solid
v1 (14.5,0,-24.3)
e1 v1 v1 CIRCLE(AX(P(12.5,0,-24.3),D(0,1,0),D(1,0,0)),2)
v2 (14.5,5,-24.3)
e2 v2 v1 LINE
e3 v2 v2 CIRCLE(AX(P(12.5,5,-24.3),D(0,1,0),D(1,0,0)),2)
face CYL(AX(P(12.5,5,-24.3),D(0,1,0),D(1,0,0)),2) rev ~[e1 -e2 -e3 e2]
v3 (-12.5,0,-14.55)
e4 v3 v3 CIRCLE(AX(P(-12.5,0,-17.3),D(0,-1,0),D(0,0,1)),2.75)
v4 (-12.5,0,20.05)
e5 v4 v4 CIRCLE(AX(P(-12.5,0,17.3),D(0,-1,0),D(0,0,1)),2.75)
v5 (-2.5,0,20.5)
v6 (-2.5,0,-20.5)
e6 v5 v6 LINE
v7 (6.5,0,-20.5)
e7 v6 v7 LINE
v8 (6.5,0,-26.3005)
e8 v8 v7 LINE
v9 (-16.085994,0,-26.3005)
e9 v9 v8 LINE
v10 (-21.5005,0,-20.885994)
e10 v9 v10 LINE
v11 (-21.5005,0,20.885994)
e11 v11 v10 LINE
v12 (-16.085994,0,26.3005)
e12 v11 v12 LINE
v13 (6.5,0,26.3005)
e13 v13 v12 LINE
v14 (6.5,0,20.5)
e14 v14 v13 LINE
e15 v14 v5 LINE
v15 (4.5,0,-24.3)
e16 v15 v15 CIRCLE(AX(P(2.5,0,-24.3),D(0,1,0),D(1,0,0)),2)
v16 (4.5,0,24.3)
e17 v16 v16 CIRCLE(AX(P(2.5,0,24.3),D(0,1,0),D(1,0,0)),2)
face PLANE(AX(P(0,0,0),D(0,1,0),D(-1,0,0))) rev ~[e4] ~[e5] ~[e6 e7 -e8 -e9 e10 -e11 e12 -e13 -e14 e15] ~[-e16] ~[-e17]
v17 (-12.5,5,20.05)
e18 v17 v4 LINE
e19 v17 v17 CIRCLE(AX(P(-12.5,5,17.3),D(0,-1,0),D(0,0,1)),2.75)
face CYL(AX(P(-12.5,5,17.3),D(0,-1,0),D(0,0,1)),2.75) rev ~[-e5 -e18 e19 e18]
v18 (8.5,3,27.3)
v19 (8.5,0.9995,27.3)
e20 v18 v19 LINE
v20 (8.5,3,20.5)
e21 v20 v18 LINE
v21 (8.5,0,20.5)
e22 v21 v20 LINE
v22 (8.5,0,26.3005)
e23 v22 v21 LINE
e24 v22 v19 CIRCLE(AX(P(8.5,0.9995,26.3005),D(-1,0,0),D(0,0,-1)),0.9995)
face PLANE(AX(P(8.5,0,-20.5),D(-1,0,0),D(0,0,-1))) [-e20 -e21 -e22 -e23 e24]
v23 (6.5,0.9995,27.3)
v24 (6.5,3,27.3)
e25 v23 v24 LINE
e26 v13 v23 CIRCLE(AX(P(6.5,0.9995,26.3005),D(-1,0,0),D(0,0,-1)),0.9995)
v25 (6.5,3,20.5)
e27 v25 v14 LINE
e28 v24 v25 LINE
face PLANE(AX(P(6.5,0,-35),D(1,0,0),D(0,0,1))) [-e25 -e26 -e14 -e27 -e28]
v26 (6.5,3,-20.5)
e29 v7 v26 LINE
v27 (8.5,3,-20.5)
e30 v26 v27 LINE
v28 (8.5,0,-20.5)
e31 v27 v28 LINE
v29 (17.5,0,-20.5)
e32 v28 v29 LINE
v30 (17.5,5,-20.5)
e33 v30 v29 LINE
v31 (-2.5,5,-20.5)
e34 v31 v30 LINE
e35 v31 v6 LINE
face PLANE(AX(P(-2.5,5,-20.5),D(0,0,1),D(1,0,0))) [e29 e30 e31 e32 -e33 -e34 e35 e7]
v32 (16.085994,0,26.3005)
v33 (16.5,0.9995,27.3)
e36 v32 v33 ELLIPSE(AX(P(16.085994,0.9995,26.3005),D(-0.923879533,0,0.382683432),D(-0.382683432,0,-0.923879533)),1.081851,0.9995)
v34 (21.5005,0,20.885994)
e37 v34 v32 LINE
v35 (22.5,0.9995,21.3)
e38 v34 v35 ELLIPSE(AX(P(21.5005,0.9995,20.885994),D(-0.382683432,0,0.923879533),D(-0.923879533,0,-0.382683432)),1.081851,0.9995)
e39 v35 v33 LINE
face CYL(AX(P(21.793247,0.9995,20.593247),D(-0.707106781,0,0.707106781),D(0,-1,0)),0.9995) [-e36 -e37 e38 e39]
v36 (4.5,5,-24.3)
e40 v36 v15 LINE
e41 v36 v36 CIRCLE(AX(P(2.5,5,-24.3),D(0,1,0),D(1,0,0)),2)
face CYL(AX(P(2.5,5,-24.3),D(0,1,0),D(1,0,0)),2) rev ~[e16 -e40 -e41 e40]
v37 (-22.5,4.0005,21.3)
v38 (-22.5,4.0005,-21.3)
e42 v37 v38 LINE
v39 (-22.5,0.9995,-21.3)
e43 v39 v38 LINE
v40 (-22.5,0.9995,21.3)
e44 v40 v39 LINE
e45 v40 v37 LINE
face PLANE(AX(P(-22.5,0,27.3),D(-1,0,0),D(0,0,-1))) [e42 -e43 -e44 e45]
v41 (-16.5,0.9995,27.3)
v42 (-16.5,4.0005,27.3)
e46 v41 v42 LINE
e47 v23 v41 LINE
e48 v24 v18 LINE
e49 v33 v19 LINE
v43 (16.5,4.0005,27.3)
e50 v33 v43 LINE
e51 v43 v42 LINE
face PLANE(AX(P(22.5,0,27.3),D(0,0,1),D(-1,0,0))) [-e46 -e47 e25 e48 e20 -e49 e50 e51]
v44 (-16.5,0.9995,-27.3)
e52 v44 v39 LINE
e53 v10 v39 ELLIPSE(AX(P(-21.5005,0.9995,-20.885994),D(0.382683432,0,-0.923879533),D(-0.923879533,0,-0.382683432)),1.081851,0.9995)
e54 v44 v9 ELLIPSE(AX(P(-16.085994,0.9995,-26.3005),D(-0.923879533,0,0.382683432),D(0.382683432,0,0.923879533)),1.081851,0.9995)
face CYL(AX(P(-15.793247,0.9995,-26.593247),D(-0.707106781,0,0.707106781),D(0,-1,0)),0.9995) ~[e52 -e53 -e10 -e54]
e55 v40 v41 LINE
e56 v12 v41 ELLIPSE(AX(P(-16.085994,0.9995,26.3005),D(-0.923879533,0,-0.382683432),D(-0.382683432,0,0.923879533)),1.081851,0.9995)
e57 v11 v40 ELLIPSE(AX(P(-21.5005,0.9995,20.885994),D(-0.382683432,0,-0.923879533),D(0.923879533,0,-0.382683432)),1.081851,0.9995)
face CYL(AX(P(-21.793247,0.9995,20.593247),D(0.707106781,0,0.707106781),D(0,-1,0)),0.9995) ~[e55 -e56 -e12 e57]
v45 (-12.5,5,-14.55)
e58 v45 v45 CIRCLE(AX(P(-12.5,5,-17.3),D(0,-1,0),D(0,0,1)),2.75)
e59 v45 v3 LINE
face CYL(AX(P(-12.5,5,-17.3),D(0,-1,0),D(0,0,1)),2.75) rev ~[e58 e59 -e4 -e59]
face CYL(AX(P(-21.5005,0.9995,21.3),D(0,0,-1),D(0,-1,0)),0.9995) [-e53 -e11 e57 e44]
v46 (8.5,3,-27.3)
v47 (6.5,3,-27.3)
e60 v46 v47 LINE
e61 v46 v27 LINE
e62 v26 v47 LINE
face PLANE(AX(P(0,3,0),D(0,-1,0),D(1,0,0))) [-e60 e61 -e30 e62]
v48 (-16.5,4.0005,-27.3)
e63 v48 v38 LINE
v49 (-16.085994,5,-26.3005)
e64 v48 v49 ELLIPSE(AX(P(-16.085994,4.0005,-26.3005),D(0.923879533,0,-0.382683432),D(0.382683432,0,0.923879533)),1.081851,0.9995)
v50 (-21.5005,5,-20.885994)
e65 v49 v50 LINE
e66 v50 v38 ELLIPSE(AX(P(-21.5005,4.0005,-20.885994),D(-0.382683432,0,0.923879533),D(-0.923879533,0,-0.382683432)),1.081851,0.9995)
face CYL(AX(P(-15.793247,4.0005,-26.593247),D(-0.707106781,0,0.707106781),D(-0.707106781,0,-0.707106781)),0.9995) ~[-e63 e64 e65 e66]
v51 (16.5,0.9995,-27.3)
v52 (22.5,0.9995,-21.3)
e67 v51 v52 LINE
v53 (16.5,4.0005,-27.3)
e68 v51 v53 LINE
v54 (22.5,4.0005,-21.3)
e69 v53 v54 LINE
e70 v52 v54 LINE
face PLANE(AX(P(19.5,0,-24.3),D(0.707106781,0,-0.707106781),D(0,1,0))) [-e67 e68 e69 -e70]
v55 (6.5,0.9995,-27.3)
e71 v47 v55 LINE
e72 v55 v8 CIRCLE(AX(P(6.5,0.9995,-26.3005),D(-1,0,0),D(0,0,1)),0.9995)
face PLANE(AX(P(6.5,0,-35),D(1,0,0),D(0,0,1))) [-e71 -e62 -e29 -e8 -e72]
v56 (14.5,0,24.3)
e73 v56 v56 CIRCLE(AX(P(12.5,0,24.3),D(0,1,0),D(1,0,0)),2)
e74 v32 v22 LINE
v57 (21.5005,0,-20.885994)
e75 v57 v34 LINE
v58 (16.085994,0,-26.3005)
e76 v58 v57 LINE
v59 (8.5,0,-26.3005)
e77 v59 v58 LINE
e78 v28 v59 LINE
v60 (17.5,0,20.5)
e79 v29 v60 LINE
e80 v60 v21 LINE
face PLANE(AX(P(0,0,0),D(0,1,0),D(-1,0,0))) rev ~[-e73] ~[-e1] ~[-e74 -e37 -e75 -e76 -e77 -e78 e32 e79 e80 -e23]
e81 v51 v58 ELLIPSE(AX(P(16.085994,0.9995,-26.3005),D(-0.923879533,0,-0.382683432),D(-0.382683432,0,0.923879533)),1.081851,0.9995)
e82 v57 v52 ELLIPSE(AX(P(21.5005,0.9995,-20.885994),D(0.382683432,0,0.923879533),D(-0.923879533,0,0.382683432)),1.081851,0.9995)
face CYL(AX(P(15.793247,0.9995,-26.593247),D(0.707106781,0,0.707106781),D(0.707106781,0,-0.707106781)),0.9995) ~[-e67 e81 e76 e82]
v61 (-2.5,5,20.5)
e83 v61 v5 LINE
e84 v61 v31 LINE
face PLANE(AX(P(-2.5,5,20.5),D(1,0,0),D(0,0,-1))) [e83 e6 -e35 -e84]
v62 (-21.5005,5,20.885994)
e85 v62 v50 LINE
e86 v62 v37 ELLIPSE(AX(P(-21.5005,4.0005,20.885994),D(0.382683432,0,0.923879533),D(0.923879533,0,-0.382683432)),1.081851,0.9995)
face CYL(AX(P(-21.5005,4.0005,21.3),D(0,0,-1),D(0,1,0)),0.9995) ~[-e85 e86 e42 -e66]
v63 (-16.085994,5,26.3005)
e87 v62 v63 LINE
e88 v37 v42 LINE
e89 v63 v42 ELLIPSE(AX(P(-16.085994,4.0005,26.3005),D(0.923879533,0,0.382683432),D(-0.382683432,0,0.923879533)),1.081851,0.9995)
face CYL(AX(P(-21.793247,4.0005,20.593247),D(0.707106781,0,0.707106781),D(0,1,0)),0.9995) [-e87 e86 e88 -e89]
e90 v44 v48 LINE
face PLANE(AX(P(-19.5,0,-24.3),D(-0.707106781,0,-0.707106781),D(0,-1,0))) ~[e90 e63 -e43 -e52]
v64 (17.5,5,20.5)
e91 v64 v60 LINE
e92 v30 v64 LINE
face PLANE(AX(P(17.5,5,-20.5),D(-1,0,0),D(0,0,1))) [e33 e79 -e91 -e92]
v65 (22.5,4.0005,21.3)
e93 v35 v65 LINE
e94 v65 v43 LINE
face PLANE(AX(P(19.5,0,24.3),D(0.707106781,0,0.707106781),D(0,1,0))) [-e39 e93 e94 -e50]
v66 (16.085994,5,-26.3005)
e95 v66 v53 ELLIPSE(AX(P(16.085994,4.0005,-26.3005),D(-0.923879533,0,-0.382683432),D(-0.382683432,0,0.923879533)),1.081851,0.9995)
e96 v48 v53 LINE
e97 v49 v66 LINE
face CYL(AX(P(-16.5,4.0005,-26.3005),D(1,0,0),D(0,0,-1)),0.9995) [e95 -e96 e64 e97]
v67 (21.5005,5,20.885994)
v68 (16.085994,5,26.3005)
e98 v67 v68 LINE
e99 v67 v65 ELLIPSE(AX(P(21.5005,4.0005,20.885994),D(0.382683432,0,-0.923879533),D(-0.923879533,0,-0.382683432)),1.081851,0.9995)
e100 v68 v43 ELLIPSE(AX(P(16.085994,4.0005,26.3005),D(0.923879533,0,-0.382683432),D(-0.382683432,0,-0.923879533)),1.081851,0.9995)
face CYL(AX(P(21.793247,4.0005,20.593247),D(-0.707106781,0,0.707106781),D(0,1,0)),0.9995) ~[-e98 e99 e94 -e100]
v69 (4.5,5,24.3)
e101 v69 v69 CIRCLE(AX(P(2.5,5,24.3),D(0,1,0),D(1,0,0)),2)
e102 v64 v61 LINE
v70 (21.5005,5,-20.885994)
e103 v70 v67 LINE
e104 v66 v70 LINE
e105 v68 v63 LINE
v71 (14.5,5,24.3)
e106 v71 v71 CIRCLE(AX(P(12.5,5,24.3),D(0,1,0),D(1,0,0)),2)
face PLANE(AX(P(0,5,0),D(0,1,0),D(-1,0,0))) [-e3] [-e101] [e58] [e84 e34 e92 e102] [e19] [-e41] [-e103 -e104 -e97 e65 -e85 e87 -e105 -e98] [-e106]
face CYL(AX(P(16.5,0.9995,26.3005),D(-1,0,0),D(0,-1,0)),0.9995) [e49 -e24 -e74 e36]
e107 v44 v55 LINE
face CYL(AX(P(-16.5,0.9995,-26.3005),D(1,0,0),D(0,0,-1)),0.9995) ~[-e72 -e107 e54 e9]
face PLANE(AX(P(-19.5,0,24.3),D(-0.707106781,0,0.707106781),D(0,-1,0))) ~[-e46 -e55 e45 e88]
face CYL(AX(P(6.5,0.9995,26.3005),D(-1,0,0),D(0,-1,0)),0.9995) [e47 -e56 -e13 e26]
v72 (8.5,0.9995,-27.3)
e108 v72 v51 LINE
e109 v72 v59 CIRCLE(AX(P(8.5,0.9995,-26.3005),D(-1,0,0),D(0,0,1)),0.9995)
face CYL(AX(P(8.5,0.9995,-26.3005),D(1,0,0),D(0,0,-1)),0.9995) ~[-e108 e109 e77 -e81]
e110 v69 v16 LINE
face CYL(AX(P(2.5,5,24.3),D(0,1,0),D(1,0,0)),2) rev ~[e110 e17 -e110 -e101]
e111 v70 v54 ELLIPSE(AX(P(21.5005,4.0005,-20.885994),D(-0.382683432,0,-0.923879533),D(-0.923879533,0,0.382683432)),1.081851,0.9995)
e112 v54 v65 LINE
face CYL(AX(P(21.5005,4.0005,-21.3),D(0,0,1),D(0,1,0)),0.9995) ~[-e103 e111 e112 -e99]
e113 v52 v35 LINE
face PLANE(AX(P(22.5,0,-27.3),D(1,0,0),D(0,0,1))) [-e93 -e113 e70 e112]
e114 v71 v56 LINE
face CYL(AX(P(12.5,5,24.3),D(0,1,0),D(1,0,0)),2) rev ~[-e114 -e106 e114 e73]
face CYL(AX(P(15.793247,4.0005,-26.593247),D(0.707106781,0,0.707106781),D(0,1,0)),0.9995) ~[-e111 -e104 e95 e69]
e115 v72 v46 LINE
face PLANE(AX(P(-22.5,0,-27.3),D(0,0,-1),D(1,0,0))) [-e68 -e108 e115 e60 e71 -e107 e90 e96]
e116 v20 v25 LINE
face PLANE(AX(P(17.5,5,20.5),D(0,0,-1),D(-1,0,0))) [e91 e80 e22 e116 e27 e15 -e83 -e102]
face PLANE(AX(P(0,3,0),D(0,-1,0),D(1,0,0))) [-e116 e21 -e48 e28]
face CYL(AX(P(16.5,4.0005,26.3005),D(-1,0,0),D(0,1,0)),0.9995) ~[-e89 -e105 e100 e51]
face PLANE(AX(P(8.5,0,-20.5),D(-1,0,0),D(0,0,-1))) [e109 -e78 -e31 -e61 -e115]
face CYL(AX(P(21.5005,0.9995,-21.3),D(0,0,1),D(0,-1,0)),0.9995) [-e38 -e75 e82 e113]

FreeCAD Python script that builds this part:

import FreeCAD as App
import Part
import Sketcher
from FreeCAD import Vector
Q = App.Units.Quantity


def edges_at(feature, points):
    """Names of the edges that pass closest to the given points."""
    edges = feature.Shape.Edges
    near = lambda p: min(range(len(edges)), key=lambda i: edges[i].distToShape(Part.Vertex(*p))[0])
    return sorted({f"Edge{near(p) + 1}" for p in points})


def add_polygon(sketch, points):
    """Adds a closed chain of lines whose ends are joined by coincident constraints."""
    first, n = sketch.GeometryCount, len(points)
    for a, b in zip(points, points[1:] + points[:1]):
        sketch.addGeometry(Part.LineSegment(App.Vector(*a, 0), App.Vector(*b, 0)), False)
    for i in range(n):
        sketch.addConstraint(Sketcher.Constraint("Coincident", first + i, 2, first + (i + 1) % n, 1))

doc = App.newDocument("Part")
body = doc.addObject("PartDesign::Body", "Body")

sketch1 = body.newObject("Sketcher::SketchObject", "Sketch")
sketch1.AttachmentSupport = (doc.getObject("XZ_Plane"), [""])
sketch1.MapMode = "FlatFace"
add_polygon(sketch1, [(22.5, -27.3), (-22.5, -27.3), (-22.5, 27.3), (22.5, 27.3)])
sketch1.addConstraint(Sketcher.Constraint("Horizontal", 0))
sketch1.addConstraint(Sketcher.Constraint("Vertical", 1))
sketch1.addConstraint(Sketcher.Constraint("Horizontal", 2))
sketch1.addConstraint(Sketcher.Constraint("Vertical", 3))
sketch1.addConstraint(Sketcher.Constraint("Symmetric", 0, 2, 2, 2, -1, 1))
sketch1.addConstraint(Sketcher.Constraint("DistanceX", 0, 2, 0, 1, Q("45 mm")))
sketch1.addConstraint(Sketcher.Constraint("DistanceY", 1, 1, 1, 2, Q("54.6 mm")))
pad1 = body.newObject("PartDesign::Pad", "Pad")
pad1.Profile = sketch1
pad1.Length = 5
pad1.Reversed = True

sketch2 = body.newObject("Sketcher::SketchObject", "Sketch001")
sketch2.AttachmentSupport = (doc.getObject("XZ_Plane"), [""])
sketch2.MapMode = "FlatFace"
sketch2.AttachmentOffset = App.Placement(Vector(0, 0, -5), App.Rotation())
sketch2.addGeometry(Part.Circle(Vector(-12.5, 17.3, 0), Vector(0, 0, 1), 2.75), False)
sketch2.addGeometry(Part.Circle(Vector(-12.5, -17.3, 0), Vector(0, 0, 1), 2.75), False)
sketch2.addConstraint(Sketcher.Constraint("Equal", 0, 1))
sketch2.addConstraint(Sketcher.Constraint("Symmetric", 0, 3, 1, 3, -1))
sketch2.addConstraint(Sketcher.Constraint("Diameter", 0, Q("5.5 mm")))
sketch2.addConstraint(Sketcher.Constraint("DistanceX", 0, 3, -1, 1, Q("12.5 mm")))
sketch2.addConstraint(Sketcher.Constraint("DistanceY", -1, 1, 0, 3, Q("17.3 mm")))
doc.recompute()
hole = body.newObject("PartDesign::Hole", "Hole")
hole.Profile = sketch2
hole.ThreadType = "None"
hole.Diameter = 5.5
hole.DepthType = "ThroughAll"
hole.Reversed = True

sketch3 = body.newObject("Sketcher::SketchObject", "Sketch002")
sketch3.AttachmentSupport = (doc.getObject("XZ_Plane"), [""])
sketch3.MapMode = "FlatFace"
sketch3.AttachmentOffset = App.Placement(Vector(0, 0, -5), App.Rotation())
add_polygon(sketch3, [(17.5, -20.5), (-2.5, -20.5), (-2.5, 20.5), (17.5, 20.5)])
sketch3.addGeometry(Part.Circle(Vector(2.5, 24.3, 0), Vector(0, 0, 1), 2), False)
sketch3.addGeometry(Part.Circle(Vector(2.5, -24.3, 0), Vector(0, 0, 1), 2), False)
sketch3.addGeometry(Part.Circle(Vector(12.5, -24.3, 0), Vector(0, 0, 1), 2), False)
sketch3.addGeometry(Part.Circle(Vector(12.5, 24.3, 0), Vector(0, 0, 1), 2), False)
sketch3.addConstraint(Sketcher.Constraint("Horizontal", 0))
sketch3.addConstraint(Sketcher.Constraint("Vertical", 1))
sketch3.addConstraint(Sketcher.Constraint("Horizontal", 2))
sketch3.addConstraint(Sketcher.Constraint("Vertical", 3))
sketch3.addConstraint(Sketcher.Constraint("Equal", 4, 5))
sketch3.addConstraint(Sketcher.Constraint("Equal", 5, 6))
sketch3.addConstraint(Sketcher.Constraint("Equal", 6, 7))
sketch3.addConstraint(Sketcher.Constraint("Symmetric", 4, 3, 5, 3, -1))
sketch3.addConstraint(Sketcher.Constraint("Symmetric", 6, 3, 7, 3, -1))
sketch3.addConstraint(Sketcher.Constraint("Horizontal", 5, 3, 6, 3))
sketch3.addConstraint(Sketcher.Constraint("Diameter", 4, Q("4 mm")))
sketch3.addConstraint(Sketcher.Constraint("DistanceX", 0, 2, 0, 1, Q("20 mm")))
sketch3.addConstraint(Sketcher.Constraint("DistanceY", 1, 1, 1, 2, Q("41 mm")))
sketch3.addConstraint(Sketcher.Constraint("DistanceX", 5, 3, 6, 3, Q("10 mm")))
sketch3.addConstraint(Sketcher.Constraint("DistanceX", 0, 2, 5, 3, Q("5 mm")))
sketch3.addConstraint(Sketcher.Constraint("DistanceY", -1, 1, 4, 3, Q("24.3 mm")))
sketch3.addConstraint(Sketcher.Constraint("DistanceX", -1, 1, 4, 3, Q("2.5 mm")))
sketch3.addConstraint(Sketcher.Constraint("DistanceY", 0, 2, -1, 1, Q("20.5 mm")))
pocket1 = body.newObject("PartDesign::Pocket", "Pocket")
pocket1.Profile = sketch3
pocket1.Type = "ThroughAll"
pocket1.Reversed = True

sketch4 = body.newObject("Sketcher::SketchObject", "Sketch003")
sketch4.AttachmentSupport = (doc.getObject("XZ_Plane"), [""])
sketch4.MapMode = "FlatFace"
add_polygon(sketch4, [(6.5, -35), (8.5, -35), (8.5, 35), (6.5, 35)])
sketch4.addConstraint(Sketcher.Constraint("Horizontal", 0))
sketch4.addConstraint(Sketcher.Constraint("Vertical", 1))
sketch4.addConstraint(Sketcher.Constraint("Horizontal", 2))
sketch4.addConstraint(Sketcher.Constraint("Vertical", 3))
sketch4.addConstraint(Sketcher.Constraint("DistanceX", 0, 1, 0, 2, Q("2 mm")))
sketch4.addConstraint(Sketcher.Constraint("DistanceY", 1, 1, 1, 2, Q("70 mm")))
sketch4.addConstraint(Sketcher.Constraint("DistanceY", 0, 2, -1, 1, Q("35 mm")))
sketch4.addConstraint(Sketcher.Constraint("DistanceX", -1, 1, 0, 2, Q("8.5 mm")))
pocket2 = body.newObject("PartDesign::Pocket", "Pocket001")
pocket2.Profile = sketch4
pocket2.Length = 3
doc.recompute()

chamfer = body.newObject("PartDesign::Chamfer", "Chamfer")
chamfer.Base = (pocket2, edges_at(pocket2, [
    (22.5, 2.5, -27.3),
    (22.5, 2.5, 27.3),
    (-22.5, 2.5, -27.3),
    (-22.5, 2.5, 27.3),
]))
chamfer.Size = 6
doc.recompute()

fillet = body.newObject("PartDesign::Fillet", "Fillet")
fillet.Base = (chamfer, edges_at(chamfer, [
    (-22.5, 5, 0),
    (0, 5, 27.3),
    (-19.5, 5, 24.3),
    (19.5, 5, 24.3),
    (22.5, 5, 0),
    (19.5, 5, -24.3),
    (0, 5, -27.3),
    (-19.5, 5, -24.3),
    (-22.5, 0, 0),
    (-19.5, 0, 24.3),
    (-5, 0, 27.3),
    (12.5, 0, 27.3),
    (19.5, 0, 24.3),
    (22.5, 0, 0),
    (19.5, 0, -24.3),
    (12.5, 0, -27.3),
    (-5, 0, -27.3),
    (-19.5, 0, -24.3),
]))
fillet.Radius = 1

doc.recompute()
